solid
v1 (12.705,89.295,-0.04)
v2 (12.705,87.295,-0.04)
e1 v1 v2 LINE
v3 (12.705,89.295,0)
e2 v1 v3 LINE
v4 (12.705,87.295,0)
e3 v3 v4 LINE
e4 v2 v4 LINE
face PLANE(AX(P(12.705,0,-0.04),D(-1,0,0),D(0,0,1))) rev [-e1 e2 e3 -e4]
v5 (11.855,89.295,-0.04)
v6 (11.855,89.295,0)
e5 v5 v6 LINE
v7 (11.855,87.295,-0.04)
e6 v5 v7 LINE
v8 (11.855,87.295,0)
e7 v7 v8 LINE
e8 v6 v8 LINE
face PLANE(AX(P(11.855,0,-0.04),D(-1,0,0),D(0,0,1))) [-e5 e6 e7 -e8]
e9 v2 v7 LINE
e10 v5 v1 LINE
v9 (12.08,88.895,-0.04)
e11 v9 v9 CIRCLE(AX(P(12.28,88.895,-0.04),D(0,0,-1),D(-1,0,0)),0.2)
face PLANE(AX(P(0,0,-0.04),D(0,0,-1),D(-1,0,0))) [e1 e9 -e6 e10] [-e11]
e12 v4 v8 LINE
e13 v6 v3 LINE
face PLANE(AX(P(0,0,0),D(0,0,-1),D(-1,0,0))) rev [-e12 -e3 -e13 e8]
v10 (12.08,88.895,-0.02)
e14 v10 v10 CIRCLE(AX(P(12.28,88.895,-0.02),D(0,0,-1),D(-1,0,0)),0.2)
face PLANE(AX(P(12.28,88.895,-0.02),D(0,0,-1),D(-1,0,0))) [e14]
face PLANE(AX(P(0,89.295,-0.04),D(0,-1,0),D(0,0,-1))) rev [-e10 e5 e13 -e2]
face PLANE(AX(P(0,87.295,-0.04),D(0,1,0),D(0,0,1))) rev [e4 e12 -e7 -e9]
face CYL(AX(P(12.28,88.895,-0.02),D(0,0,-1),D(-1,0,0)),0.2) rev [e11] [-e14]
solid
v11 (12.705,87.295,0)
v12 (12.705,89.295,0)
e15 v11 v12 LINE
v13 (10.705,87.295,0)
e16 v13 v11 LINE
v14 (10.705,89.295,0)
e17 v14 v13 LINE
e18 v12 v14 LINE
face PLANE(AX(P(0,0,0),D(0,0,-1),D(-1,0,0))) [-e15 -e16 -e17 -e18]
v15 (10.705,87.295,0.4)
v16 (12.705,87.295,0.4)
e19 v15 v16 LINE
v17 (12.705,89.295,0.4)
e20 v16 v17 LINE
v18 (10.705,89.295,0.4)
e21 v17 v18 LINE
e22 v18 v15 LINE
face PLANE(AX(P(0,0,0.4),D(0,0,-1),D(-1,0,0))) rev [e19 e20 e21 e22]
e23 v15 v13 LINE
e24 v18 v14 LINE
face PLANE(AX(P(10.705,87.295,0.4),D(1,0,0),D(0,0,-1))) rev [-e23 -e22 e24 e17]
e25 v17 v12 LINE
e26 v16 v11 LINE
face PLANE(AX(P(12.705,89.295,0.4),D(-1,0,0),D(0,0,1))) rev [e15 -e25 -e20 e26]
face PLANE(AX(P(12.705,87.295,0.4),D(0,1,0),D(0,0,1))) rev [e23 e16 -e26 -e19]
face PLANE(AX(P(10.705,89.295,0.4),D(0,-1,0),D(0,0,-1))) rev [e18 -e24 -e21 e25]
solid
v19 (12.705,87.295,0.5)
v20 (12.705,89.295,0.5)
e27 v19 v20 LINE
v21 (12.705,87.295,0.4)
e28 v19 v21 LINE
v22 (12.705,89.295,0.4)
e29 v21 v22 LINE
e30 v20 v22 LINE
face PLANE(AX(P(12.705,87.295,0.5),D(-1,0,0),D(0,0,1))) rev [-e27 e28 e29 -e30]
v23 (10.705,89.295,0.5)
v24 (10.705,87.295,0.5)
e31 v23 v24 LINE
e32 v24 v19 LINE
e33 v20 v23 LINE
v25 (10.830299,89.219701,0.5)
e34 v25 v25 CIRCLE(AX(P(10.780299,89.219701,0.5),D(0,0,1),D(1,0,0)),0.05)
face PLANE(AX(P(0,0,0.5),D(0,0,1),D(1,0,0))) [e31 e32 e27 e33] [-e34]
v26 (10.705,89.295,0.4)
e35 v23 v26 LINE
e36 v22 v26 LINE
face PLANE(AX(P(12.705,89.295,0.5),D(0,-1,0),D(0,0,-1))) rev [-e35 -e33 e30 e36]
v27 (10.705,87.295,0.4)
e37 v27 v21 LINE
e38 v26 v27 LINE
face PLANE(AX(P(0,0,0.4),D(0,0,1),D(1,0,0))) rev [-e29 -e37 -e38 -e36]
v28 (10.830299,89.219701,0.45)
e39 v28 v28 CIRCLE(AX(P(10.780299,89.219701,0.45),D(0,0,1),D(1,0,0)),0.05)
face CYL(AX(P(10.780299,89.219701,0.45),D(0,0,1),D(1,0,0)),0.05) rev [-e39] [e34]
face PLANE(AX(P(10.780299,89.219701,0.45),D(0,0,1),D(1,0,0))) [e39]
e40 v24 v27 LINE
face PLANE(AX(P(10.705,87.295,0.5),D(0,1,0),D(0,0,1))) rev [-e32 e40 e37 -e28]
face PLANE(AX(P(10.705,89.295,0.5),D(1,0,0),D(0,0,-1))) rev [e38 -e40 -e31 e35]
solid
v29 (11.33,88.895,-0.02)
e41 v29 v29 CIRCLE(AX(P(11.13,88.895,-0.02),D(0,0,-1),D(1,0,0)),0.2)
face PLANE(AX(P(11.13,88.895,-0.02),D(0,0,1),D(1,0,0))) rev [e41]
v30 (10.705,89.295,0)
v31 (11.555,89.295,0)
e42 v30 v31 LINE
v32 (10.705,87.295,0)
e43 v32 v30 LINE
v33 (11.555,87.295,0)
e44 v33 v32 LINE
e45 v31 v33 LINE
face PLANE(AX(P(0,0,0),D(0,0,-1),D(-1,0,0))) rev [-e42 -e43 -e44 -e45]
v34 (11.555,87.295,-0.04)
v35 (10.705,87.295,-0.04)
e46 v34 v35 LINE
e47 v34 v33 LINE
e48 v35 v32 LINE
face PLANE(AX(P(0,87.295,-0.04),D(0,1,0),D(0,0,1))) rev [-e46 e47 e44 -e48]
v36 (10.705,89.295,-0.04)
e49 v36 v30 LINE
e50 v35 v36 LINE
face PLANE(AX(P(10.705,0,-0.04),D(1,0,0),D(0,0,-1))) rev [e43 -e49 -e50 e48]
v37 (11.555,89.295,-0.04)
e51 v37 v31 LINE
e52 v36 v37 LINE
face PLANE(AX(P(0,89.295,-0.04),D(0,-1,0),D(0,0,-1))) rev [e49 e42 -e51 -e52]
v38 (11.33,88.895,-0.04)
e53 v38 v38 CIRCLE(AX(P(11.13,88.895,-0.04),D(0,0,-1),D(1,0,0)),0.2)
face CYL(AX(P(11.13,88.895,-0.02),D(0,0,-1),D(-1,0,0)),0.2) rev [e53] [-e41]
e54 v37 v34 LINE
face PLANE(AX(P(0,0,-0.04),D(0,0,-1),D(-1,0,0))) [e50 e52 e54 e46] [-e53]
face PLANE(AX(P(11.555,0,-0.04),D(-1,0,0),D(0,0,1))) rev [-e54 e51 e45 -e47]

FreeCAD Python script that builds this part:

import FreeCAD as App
import Part
import Sketcher
Q = App.Units.Quantity


def add_polygon(sketch, points):
    """Adds a closed chain of lines whose ends are joined by coincident constraints."""
    first, n = sketch.GeometryCount, len(points)
    for a, b in zip(points, points[1:] + points[:1]):
        sketch.addGeometry(Part.LineSegment(App.Vector(*a, 0), App.Vector(*b, 0)), False)
    for i in range(n):
        sketch.addConstraint(Sketcher.Constraint("Coincident", first + i, 2, first + (i + 1) % n, 1))

doc = App.newDocument("Part")
body = doc.addObject("PartDesign::Body", "Body")

sketch1 = doc.addObject("Sketcher::SketchObject", "Sketch")
body.addObject(sketch1)
sketch1.AttachmentSupport = (doc.XY_Plane, [""])
sketch1.MapMode = "FlatFace"
add_polygon(sketch1, [(10.7, 89.3), (10.7, 87.3), (12.7, 87.3), (12.7, 89.3)])
sketch1.addConstraint([
    Sketcher.Constraint("Vertical", 0),
    Sketcher.Constraint("Horizontal", 1),
    Sketcher.Constraint("Vertical", 2),
    Sketcher.Constraint("Horizontal", 3),
    Sketcher.Constraint("Equal", 3, 0),
    Sketcher.Constraint("DistanceX", 1, 1, 1, 2, Q("2 mm")),
    Sketcher.Constraint("DistanceX", -1, 1, 0, 2, Q("10.705 mm")),
    Sketcher.Constraint("DistanceY", -1, 1, 0, 2, Q("87.295 mm")),
])
pad1 = doc.addObject("PartDesign::Pad", "Pad")
body.addObject(pad1)
pad1.Profile = sketch1
pad1.Length = 0.4
body2 = doc.addObject("PartDesign::Body", "Body001")

sketch2 = doc.addObject("Sketcher::SketchObject", "Sketch001")
body2.addObject(sketch2)
sketch2.AttachmentSupport = (doc.getObject("XY_Plane001"), [""])
sketch2.MapMode = "FlatFace"
sketch2.AttachmentOffset = App.Placement(App.Vector(0, 0, 0.4), App.Rotation())
add_polygon(sketch2, [(10.7, 89.3), (10.7, 87.3), (12.7, 87.3), (12.7, 89.3)])
sketch2.addConstraint([
    Sketcher.Constraint("Vertical", 0),
    Sketcher.Constraint("Horizontal", 1),
    Sketcher.Constraint("Vertical", 2),
    Sketcher.Constraint("Horizontal", 3),
    Sketcher.Constraint("Equal", 3, 0),
    Sketcher.Constraint("DistanceX", 1, 1, 1, 2, Q("2 mm")),
    Sketcher.Constraint("DistanceX", -1, 1, 0, 2, Q("10.705 mm")),
    Sketcher.Constraint("DistanceY", -1, 1, 0, 2, Q("87.295 mm")),
])
pad2 = doc.addObject("PartDesign::Pad", "Pad001")
body2.addObject(pad2)
pad2.Profile = sketch2
pad2.Length = 0.1

sketch3 = doc.addObject("Sketcher::SketchObject", "Sketch002")
body2.addObject(sketch3)
sketch3.AttachmentSupport = (doc.getObject("XY_Plane001"), [""])
sketch3.MapMode = "FlatFace"
sketch3.AttachmentOffset = App.Placement(App.Vector(0, 0, 0.5), App.Rotation())
sketch3.addGeometry(Part.Circle(App.Vector(10.78, 89.22, 0), App.Vector(0, 0, 1), 0.05), False)
sketch3.addConstraint([
    Sketcher.Constraint("Diameter", 0, Q("0.1 mm")),
    Sketcher.Constraint("DistanceX", -1, 1, 0, 3, Q("10.780299 mm")),
    Sketcher.Constraint("DistanceY", -1, 1, 0, 3, Q("89.219701 mm")),
])
pocket1 = doc.addObject("PartDesign::Pocket", "Pocket")
body2.addObject(pocket1)
pocket1.Profile = sketch3
pocket1.Length = 0.05
body3 = doc.addObject("PartDesign::Body", "Body002")

sketch4 = doc.addObject("Sketcher::SketchObject", "Sketch003")
body3.addObject(sketch4)
sketch4.AttachmentSupport = (doc.getObject("XY_Plane002"), [""])
sketch4.MapMode = "FlatFace"
add_polygon(sketch4, [(11.6, 89.3), (11.6, 87.3), (10.7, 87.3), (10.7, 89.3)])
sketch4.addConstraint([
    Sketcher.Constraint("Vertical", 0),
    Sketcher.Constraint("Horizontal", 1),
    Sketcher.Constraint("Vertical", 2),
    Sketcher.Constraint("Horizontal", 3),
    Sketcher.Constraint("DistanceY", 0, 2, 0, 1, Q("2 mm")),
    Sketcher.Constraint("DistanceX", 1, 2, 1, 1, Q("0.85 mm")),
    Sketcher.Constraint("DistanceX", -1, 1, 0, 2, Q("11.555 mm")),
    Sketcher.Constraint("DistanceY", -1, 1, 0, 2, Q("87.295 mm")),
])
pad3 = doc.addObject("PartDesign::Pad", "Pad002")
body3.addObject(pad3)
pad3.Profile = sketch4
pad3.Length = 0.04
pad3.Reversed = True
body4 = doc.addObject("PartDesign::Body", "Body003")

sketch5 = doc.addObject("Sketcher::SketchObject", "Sketch004")
body4.addObject(sketch5)
sketch5.AttachmentSupport = (doc.getObject("XY_Plane003"), [""])
sketch5.MapMode = "FlatFace"
add_polygon(sketch5, [(12.7, 89.3), (12.7, 87.3), (11.9, 87.3), (11.9, 89.3)])
sketch5.addConstraint([
    Sketcher.Constraint("Vertical", 0),
    Sketcher.Constraint("Horizontal", 1),
    Sketcher.Constraint("Vertical", 2),
    Sketcher.Constraint("Horizontal", 3),
    Sketcher.Constraint("DistanceY", 0, 2, 0, 1, Q("2 mm")),
    Sketcher.Constraint("DistanceX", 1, 2, 1, 1, Q("0.85 mm")),
    Sketcher.Constraint("DistanceX", -1, 1, 0, 2, Q("12.705 mm")),
    Sketcher.Constraint("DistanceY", -1, 1, 0, 2, Q("87.295 mm")),
])
pad4 = doc.addObject("PartDesign::Pad", "Pad003")
body4.addObject(pad4)
pad4.Profile = sketch5
pad4.Length = 0.04
pad4.Reversed = True
body5 = doc.addObject("PartDesign::Body", "Body004")
body5.AllowCompound = True

sketch6 = doc.addObject("Sketcher::SketchObject", "Sketch005")
body5.addObject(sketch6)
sketch6.AttachmentSupport = (doc.getObject("XY_Plane004"), [""])
sketch6.MapMode = "FlatFace"
sketch6.AttachmentOffset = App.Placement(App.Vector(0, 0, -0.04), App.Rotation())
sketch6.addGeometry([
    Part.Circle(App.Vector(12.28, 88.89, 0), App.Vector(0, 0, 1), 0.2),
    Part.Circle(App.Vector(11.13, 88.89, 0), App.Vector(0, 0, 1), 0.2),
], False)
sketch6.addConstraint([
    Sketcher.Constraint("Equal", 0, 1),
    Sketcher.Constraint("Horizontal", 0, 3, 1, 3),
    Sketcher.Constraint("Diameter", 0, Q("0.4 mm")),
    Sketcher.Constraint("DistanceX", -1, 1, 0, 3, Q("12.28 mm")),
    Sketcher.Constraint("DistanceX", -1, 1, 1, 3, Q("11.13 mm")),
    Sketcher.Constraint("DistanceY", -1, 1, 0, 3, Q("88.895 mm")),
])
pad5 = doc.addObject("PartDesign::Pad", "Pad004")
body5.addObject(pad5)
pad5.Profile = sketch6
pad5.Length = 0.02
doc.recompute()

body6 = doc.addObject("PartDesign::Body", "Body005")
body6.BaseFeature = body5
boolean = doc.addObject("PartDesign::Boolean", "Boolean")
body3.addObject(boolean)
boolean.Type = "Cut"
boolean.addObjects([body6])
doc.recompute()

boolean2 = doc.addObject("PartDesign::Boolean", "Boolean001")
body4.addObject(boolean2)
boolean2.Type = "Cut"
boolean2.addObjects([body5])

doc.recompute()
